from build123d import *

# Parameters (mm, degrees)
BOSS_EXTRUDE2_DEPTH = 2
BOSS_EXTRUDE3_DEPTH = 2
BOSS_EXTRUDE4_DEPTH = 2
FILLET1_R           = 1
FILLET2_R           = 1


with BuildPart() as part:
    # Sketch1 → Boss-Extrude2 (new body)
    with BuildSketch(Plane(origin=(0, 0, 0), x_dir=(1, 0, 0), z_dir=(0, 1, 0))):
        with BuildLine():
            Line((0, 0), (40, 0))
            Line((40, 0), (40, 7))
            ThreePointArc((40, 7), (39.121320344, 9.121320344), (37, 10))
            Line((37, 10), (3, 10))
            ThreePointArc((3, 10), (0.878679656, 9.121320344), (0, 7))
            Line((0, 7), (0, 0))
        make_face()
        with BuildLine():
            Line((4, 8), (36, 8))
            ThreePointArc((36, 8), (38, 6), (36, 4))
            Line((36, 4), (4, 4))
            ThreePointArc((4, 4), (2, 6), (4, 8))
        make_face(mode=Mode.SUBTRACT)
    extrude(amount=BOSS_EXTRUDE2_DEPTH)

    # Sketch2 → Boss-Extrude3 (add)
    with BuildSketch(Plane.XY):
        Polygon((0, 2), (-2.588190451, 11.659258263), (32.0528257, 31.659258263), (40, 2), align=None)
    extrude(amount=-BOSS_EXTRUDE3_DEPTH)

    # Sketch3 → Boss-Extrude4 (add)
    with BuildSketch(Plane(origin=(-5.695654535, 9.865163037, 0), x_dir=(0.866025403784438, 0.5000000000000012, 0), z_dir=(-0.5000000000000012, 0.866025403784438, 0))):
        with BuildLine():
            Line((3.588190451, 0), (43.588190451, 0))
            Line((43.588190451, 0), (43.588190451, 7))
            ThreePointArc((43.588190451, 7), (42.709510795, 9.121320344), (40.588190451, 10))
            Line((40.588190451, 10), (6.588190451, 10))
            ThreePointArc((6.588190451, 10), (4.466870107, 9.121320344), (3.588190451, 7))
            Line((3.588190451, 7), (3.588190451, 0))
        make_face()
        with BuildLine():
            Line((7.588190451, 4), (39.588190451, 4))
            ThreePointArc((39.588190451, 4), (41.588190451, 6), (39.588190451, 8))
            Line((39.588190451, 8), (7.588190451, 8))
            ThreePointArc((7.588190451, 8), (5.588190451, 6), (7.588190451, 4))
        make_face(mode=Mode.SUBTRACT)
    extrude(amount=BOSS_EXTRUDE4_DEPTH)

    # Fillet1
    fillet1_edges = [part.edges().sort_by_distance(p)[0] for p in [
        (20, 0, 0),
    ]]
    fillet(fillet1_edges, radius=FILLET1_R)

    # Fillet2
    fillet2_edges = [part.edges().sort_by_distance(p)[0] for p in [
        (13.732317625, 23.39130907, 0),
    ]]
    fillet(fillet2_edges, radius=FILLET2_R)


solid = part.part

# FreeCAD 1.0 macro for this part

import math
import FreeCAD as App
import Part
import Sketcher
from FreeCAD import Vector
Q = App.Units.Quantity


def edges_at(feature, points):
    """Names of the edges that pass closest to the given points."""
    edges = feature.Shape.Edges
    near = lambda p: min(range(len(edges)), key=lambda i: edges[i].distToShape(Part.Vertex(*p))[0])
    return sorted({f"Edge{near(p) + 1}" for p in points})

doc = App.newDocument("Part")
body = doc.addObject("PartDesign::Body", "Body")

sketch1 = body.newObject("Sketcher::SketchObject", "Sketch")
sketch1.AttachmentSupport = (doc.getObject("XZ_Plane"), [""])
sketch1.MapMode = "FlatFace"
sketch1.addGeometry(Part.LineSegment(Vector(0, 0, 0), Vector(40, 0, 0)), False)
sketch1.addGeometry(Part.LineSegment(Vector(40, 0, 0), Vector(40, -7, 0)), False)
sketch1.addGeometry(Part.ArcOfCircle(Part.Circle(Vector(37, -7, 0), Vector(0, 0, 1), 3), math.radians(-90), math.radians(0)), False)
sketch1.addGeometry(Part.LineSegment(Vector(37, -10, 0), Vector(3, -10, 0)), False)
sketch1.addGeometry(Part.ArcOfCircle(Part.Circle(Vector(3, -7, 0), Vector(0, 0, 1), 3), math.radians(180), math.radians(270)), False)
sketch1.addGeometry(Part.LineSegment(Vector(0, -7, 0), Vector(0, 0, 0)), False)
sketch1.addGeometry(Part.ArcOfCircle(Part.Circle(Vector(4, -6, 0), Vector(0, 0, 1), 2), math.radians(90), math.radians(270)), False)
sketch1.addGeometry(Part.LineSegment(Vector(4, -8, 0), Vector(36, -8, 0)), False)
sketch1.addGeometry(Part.ArcOfCircle(Part.Circle(Vector(36, -6, 0), Vector(0, 0, 1), 2), math.radians(-90), math.radians(90)), False)
sketch1.addGeometry(Part.LineSegment(Vector(36, -4, 0), Vector(4, -4, 0)), False)
sketch1.addConstraint(Sketcher.Constraint("Coincident", 0, 2, 1, 1))
sketch1.addConstraint(Sketcher.Constraint("Tangent", 1, 2, 2, 2))
sketch1.addConstraint(Sketcher.Constraint("Tangent", 2, 1, 3, 1))
sketch1.addConstraint(Sketcher.Constraint("Tangent", 3, 2, 4, 2))
sketch1.addConstraint(Sketcher.Constraint("Tangent", 4, 1, 5, 1))
sketch1.addConstraint(Sketcher.Constraint("Coincident", 5, 2, 0, 1))
sketch1.addConstraint(Sketcher.Constraint("Tangent", 6, 2, 7, 1))
sketch1.addConstraint(Sketcher.Constraint("Tangent", 7, 2, 8, 1))
sketch1.addConstraint(Sketcher.Constraint("Tangent", 8, 2, 9, 1))
sketch1.addConstraint(Sketcher.Constraint("Tangent", 9, 2, 6, 1))
sketch1.addConstraint(Sketcher.Constraint("Horizontal", 0))
sketch1.addConstraint(Sketcher.Constraint("Vertical", 1))
sketch1.addConstraint(Sketcher.Constraint("Horizontal", 3))
sketch1.addConstraint(Sketcher.Constraint("Vertical", 5))
sketch1.addConstraint(Sketcher.Constraint("Horizontal", 7))
sketch1.addConstraint(Sketcher.Constraint("Horizontal", 9))
sketch1.addConstraint(Sketcher.Constraint("Coincident", 5, 2, -1, 1))
sketch1.addConstraint(Sketcher.Constraint("Equal", 2, 4))
sketch1.addConstraint(Sketcher.Constraint("Radius", 2, 3.0))
sketch1.addConstraint(Sketcher.Constraint("Radius", 6, 2.0))
sketch1.addConstraint(Sketcher.Constraint("DistanceX", 0, 1, 0, 2, 40.0))
sketch1.addConstraint(Sketcher.Constraint("DistanceX", 7, 1, 7, 2, 32.0))
sketch1.addConstraint(Sketcher.Constraint("DistanceY", 1, 2, 1, 1, 7.0))
sketch1.addConstraint(Sketcher.Constraint("DistanceX", -1, 1, 6, 3, 4.0))
sketch1.addConstraint(Sketcher.Constraint("DistanceY", 6, 3, -1, 1, 6.0))
pad1 = body.newObject("PartDesign::Pad", "Pad")
pad1.Profile = sketch1
pad1.Length = 2
pad1.Reversed = True

sketch2 = body.newObject("Sketcher::SketchObject", "Sketch001")
sketch2.AttachmentSupport = (doc.getObject("XY_Plane"), [""])
sketch2.MapMode = "FlatFace"
sketch2.addGeometry(Part.LineSegment(Vector(-3, 12, 0), Vector(0, 2, 0)), False)
sketch2.addGeometry(Part.LineSegment(Vector(0, 2, 0), Vector(40, 2, 0)), False)
sketch2.addGeometry(Part.LineSegment(Vector(40, 2, 0), Vector(32, 32, 0)), False)
sketch2.addGeometry(Part.LineSegment(Vector(32, 32, 0), Vector(-3, 12, 0)), False)
sketch2.addConstraint(Sketcher.Constraint("Coincident", 0, 2, 1, 1))
sketch2.addConstraint(Sketcher.Constraint("Coincident", 1, 2, 2, 1))
sketch2.addConstraint(Sketcher.Constraint("Coincident", 2, 2, 3, 1))
sketch2.addConstraint(Sketcher.Constraint("Coincident", 3, 2, 0, 1))
sketch2.addConstraint(Sketcher.Constraint("Horizontal", 1))
sketch2.addConstraint(Sketcher.Constraint("PointOnObject", 0, 2, -2))
sketch2.addConstraint(Sketcher.Constraint("Parallel", 0, 2))
sketch2.addConstraint(Sketcher.Constraint("DistanceX", 1, 1, 1, 2, 40.0))
sketch2.addConstraint(Sketcher.Constraint("Angle", 0, Q("-75 deg")))
sketch2.addConstraint(Sketcher.Constraint("Angle", 3, Q("-150 deg")))
sketch2.addConstraint(Sketcher.Constraint("Distance", 0, 10.0))
sketch2.addConstraint(Sketcher.Constraint("DistanceY", -1, 1, 0, 2, 2.0))
pad2 = body.newObject("PartDesign::Pad", "Pad001")
pad2.Profile = sketch2
pad2.Length = 2
pad2.Reversed = True

sketch3 = body.newObject("Sketcher::SketchObject", "Sketch002")
sketch3.Placement = App.Placement(Vector(-5.695655, 9.865163, 0), App.Rotation(Vector(0.866025404, 0.5, 0), Vector(0, 0, -1), Vector(-0.5, 0.866025404, 0), "ZXY"))
sketch3.addGeometry(Part.LineSegment(Vector(3.6, 0, 0), Vector(43.6, 0, 0)), False)
sketch3.addGeometry(Part.LineSegment(Vector(43.6, 0, 0), Vector(43.6, 7, 0)), False)
sketch3.addGeometry(Part.ArcOfCircle(Part.Circle(Vector(40.6, 7, 0), Vector(0, 0, 1), 3), math.radians(0), math.radians(90)), False)
sketch3.addGeometry(Part.LineSegment(Vector(40.6, 10, 0), Vector(6.6, 10, 0)), False)
sketch3.addGeometry(Part.ArcOfCircle(Part.Circle(Vector(6.6, 7, 0), Vector(0, 0, 1), 3), math.radians(90), math.radians(180)), False)
sketch3.addGeometry(Part.LineSegment(Vector(3.6, 7, 0), Vector(3.6, 0, 0)), False)
sketch3.addGeometry(Part.LineSegment(Vector(39.6, 4, 0), Vector(7.6, 4, 0)), False)
sketch3.addGeometry(Part.ArcOfCircle(Part.Circle(Vector(7.6, 6, 0), Vector(0, 0, 1), 2), math.radians(90), math.radians(270)), False)
sketch3.addGeometry(Part.LineSegment(Vector(7.6, 8, 0), Vector(39.6, 8, 0)), False)
sketch3.addGeometry(Part.ArcOfCircle(Part.Circle(Vector(39.6, 6, 0), Vector(0, 0, 1), 2), math.radians(-90), math.radians(90)), False)
sketch3.addConstraint(Sketcher.Constraint("Coincident", 0, 2, 1, 1))
sketch3.addConstraint(Sketcher.Constraint("Tangent", 1, 2, 2, 1))
sketch3.addConstraint(Sketcher.Constraint("Tangent", 2, 2, 3, 1))
sketch3.addConstraint(Sketcher.Constraint("Tangent", 3, 2, 4, 1))
sketch3.addConstraint(Sketcher.Constraint("Tangent", 4, 2, 5, 1))
sketch3.addConstraint(Sketcher.Constraint("Coincident", 5, 2, 0, 1))
sketch3.addConstraint(Sketcher.Constraint("Tangent", 6, 2, 7, 2))
sketch3.addConstraint(Sketcher.Constraint("Tangent", 7, 1, 8, 1))
sketch3.addConstraint(Sketcher.Constraint("Tangent", 8, 2, 9, 2))
sketch3.addConstraint(Sketcher.Constraint("Tangent", 9, 1, 6, 1))
sketch3.addConstraint(Sketcher.Constraint("Horizontal", 0))
sketch3.addConstraint(Sketcher.Constraint("Vertical", 1))
sketch3.addConstraint(Sketcher.Constraint("Horizontal", 3))
sketch3.addConstraint(Sketcher.Constraint("Vertical", 5))
sketch3.addConstraint(Sketcher.Constraint("Horizontal", 6))
sketch3.addConstraint(Sketcher.Constraint("Horizontal", 8))
sketch3.addConstraint(Sketcher.Constraint("Equal", 2, 4))
sketch3.addConstraint(Sketcher.Constraint("PointOnObject", 0, 2, -1))
sketch3.addConstraint(Sketcher.Constraint("Radius", 2, 3.0))
sketch3.addConstraint(Sketcher.Constraint("Radius", 7, 2.0))
sketch3.addConstraint(Sketcher.Constraint("DistanceX", 0, 1, 0, 2, 40.0))
sketch3.addConstraint(Sketcher.Constraint("DistanceX", 6, 2, 6, 1, 32.0))
sketch3.addConstraint(Sketcher.Constraint("DistanceY", 1, 1, 1, 2, 7.0))
sketch3.addConstraint(Sketcher.Constraint("DistanceY", -1, 1, 7, 3, 6.0))
sketch3.addConstraint(Sketcher.Constraint("DistanceX", 4, 3, 7, 3, 1.0))
sketch3.addConstraint(Sketcher.Constraint("DistanceX", -1, 1, 2, 3, 40.58819))
pad3 = body.newObject("PartDesign::Pad", "Pad002")
pad3.Profile = sketch3
pad3.Length = 2
doc.recompute()

fillet = body.newObject("PartDesign::Fillet", "Fillet")
fillet.Base = (pad3, edges_at(pad3, [(20, 0, 0)]))
fillet.Radius = 1
doc.recompute()

fillet2 = body.newObject("PartDesign::Fillet", "Fillet001")
fillet2.Base = (fillet, edges_at(fillet, [(13.732, 23.391, 0)]))
fillet2.Radius = 1

doc.recompute()
